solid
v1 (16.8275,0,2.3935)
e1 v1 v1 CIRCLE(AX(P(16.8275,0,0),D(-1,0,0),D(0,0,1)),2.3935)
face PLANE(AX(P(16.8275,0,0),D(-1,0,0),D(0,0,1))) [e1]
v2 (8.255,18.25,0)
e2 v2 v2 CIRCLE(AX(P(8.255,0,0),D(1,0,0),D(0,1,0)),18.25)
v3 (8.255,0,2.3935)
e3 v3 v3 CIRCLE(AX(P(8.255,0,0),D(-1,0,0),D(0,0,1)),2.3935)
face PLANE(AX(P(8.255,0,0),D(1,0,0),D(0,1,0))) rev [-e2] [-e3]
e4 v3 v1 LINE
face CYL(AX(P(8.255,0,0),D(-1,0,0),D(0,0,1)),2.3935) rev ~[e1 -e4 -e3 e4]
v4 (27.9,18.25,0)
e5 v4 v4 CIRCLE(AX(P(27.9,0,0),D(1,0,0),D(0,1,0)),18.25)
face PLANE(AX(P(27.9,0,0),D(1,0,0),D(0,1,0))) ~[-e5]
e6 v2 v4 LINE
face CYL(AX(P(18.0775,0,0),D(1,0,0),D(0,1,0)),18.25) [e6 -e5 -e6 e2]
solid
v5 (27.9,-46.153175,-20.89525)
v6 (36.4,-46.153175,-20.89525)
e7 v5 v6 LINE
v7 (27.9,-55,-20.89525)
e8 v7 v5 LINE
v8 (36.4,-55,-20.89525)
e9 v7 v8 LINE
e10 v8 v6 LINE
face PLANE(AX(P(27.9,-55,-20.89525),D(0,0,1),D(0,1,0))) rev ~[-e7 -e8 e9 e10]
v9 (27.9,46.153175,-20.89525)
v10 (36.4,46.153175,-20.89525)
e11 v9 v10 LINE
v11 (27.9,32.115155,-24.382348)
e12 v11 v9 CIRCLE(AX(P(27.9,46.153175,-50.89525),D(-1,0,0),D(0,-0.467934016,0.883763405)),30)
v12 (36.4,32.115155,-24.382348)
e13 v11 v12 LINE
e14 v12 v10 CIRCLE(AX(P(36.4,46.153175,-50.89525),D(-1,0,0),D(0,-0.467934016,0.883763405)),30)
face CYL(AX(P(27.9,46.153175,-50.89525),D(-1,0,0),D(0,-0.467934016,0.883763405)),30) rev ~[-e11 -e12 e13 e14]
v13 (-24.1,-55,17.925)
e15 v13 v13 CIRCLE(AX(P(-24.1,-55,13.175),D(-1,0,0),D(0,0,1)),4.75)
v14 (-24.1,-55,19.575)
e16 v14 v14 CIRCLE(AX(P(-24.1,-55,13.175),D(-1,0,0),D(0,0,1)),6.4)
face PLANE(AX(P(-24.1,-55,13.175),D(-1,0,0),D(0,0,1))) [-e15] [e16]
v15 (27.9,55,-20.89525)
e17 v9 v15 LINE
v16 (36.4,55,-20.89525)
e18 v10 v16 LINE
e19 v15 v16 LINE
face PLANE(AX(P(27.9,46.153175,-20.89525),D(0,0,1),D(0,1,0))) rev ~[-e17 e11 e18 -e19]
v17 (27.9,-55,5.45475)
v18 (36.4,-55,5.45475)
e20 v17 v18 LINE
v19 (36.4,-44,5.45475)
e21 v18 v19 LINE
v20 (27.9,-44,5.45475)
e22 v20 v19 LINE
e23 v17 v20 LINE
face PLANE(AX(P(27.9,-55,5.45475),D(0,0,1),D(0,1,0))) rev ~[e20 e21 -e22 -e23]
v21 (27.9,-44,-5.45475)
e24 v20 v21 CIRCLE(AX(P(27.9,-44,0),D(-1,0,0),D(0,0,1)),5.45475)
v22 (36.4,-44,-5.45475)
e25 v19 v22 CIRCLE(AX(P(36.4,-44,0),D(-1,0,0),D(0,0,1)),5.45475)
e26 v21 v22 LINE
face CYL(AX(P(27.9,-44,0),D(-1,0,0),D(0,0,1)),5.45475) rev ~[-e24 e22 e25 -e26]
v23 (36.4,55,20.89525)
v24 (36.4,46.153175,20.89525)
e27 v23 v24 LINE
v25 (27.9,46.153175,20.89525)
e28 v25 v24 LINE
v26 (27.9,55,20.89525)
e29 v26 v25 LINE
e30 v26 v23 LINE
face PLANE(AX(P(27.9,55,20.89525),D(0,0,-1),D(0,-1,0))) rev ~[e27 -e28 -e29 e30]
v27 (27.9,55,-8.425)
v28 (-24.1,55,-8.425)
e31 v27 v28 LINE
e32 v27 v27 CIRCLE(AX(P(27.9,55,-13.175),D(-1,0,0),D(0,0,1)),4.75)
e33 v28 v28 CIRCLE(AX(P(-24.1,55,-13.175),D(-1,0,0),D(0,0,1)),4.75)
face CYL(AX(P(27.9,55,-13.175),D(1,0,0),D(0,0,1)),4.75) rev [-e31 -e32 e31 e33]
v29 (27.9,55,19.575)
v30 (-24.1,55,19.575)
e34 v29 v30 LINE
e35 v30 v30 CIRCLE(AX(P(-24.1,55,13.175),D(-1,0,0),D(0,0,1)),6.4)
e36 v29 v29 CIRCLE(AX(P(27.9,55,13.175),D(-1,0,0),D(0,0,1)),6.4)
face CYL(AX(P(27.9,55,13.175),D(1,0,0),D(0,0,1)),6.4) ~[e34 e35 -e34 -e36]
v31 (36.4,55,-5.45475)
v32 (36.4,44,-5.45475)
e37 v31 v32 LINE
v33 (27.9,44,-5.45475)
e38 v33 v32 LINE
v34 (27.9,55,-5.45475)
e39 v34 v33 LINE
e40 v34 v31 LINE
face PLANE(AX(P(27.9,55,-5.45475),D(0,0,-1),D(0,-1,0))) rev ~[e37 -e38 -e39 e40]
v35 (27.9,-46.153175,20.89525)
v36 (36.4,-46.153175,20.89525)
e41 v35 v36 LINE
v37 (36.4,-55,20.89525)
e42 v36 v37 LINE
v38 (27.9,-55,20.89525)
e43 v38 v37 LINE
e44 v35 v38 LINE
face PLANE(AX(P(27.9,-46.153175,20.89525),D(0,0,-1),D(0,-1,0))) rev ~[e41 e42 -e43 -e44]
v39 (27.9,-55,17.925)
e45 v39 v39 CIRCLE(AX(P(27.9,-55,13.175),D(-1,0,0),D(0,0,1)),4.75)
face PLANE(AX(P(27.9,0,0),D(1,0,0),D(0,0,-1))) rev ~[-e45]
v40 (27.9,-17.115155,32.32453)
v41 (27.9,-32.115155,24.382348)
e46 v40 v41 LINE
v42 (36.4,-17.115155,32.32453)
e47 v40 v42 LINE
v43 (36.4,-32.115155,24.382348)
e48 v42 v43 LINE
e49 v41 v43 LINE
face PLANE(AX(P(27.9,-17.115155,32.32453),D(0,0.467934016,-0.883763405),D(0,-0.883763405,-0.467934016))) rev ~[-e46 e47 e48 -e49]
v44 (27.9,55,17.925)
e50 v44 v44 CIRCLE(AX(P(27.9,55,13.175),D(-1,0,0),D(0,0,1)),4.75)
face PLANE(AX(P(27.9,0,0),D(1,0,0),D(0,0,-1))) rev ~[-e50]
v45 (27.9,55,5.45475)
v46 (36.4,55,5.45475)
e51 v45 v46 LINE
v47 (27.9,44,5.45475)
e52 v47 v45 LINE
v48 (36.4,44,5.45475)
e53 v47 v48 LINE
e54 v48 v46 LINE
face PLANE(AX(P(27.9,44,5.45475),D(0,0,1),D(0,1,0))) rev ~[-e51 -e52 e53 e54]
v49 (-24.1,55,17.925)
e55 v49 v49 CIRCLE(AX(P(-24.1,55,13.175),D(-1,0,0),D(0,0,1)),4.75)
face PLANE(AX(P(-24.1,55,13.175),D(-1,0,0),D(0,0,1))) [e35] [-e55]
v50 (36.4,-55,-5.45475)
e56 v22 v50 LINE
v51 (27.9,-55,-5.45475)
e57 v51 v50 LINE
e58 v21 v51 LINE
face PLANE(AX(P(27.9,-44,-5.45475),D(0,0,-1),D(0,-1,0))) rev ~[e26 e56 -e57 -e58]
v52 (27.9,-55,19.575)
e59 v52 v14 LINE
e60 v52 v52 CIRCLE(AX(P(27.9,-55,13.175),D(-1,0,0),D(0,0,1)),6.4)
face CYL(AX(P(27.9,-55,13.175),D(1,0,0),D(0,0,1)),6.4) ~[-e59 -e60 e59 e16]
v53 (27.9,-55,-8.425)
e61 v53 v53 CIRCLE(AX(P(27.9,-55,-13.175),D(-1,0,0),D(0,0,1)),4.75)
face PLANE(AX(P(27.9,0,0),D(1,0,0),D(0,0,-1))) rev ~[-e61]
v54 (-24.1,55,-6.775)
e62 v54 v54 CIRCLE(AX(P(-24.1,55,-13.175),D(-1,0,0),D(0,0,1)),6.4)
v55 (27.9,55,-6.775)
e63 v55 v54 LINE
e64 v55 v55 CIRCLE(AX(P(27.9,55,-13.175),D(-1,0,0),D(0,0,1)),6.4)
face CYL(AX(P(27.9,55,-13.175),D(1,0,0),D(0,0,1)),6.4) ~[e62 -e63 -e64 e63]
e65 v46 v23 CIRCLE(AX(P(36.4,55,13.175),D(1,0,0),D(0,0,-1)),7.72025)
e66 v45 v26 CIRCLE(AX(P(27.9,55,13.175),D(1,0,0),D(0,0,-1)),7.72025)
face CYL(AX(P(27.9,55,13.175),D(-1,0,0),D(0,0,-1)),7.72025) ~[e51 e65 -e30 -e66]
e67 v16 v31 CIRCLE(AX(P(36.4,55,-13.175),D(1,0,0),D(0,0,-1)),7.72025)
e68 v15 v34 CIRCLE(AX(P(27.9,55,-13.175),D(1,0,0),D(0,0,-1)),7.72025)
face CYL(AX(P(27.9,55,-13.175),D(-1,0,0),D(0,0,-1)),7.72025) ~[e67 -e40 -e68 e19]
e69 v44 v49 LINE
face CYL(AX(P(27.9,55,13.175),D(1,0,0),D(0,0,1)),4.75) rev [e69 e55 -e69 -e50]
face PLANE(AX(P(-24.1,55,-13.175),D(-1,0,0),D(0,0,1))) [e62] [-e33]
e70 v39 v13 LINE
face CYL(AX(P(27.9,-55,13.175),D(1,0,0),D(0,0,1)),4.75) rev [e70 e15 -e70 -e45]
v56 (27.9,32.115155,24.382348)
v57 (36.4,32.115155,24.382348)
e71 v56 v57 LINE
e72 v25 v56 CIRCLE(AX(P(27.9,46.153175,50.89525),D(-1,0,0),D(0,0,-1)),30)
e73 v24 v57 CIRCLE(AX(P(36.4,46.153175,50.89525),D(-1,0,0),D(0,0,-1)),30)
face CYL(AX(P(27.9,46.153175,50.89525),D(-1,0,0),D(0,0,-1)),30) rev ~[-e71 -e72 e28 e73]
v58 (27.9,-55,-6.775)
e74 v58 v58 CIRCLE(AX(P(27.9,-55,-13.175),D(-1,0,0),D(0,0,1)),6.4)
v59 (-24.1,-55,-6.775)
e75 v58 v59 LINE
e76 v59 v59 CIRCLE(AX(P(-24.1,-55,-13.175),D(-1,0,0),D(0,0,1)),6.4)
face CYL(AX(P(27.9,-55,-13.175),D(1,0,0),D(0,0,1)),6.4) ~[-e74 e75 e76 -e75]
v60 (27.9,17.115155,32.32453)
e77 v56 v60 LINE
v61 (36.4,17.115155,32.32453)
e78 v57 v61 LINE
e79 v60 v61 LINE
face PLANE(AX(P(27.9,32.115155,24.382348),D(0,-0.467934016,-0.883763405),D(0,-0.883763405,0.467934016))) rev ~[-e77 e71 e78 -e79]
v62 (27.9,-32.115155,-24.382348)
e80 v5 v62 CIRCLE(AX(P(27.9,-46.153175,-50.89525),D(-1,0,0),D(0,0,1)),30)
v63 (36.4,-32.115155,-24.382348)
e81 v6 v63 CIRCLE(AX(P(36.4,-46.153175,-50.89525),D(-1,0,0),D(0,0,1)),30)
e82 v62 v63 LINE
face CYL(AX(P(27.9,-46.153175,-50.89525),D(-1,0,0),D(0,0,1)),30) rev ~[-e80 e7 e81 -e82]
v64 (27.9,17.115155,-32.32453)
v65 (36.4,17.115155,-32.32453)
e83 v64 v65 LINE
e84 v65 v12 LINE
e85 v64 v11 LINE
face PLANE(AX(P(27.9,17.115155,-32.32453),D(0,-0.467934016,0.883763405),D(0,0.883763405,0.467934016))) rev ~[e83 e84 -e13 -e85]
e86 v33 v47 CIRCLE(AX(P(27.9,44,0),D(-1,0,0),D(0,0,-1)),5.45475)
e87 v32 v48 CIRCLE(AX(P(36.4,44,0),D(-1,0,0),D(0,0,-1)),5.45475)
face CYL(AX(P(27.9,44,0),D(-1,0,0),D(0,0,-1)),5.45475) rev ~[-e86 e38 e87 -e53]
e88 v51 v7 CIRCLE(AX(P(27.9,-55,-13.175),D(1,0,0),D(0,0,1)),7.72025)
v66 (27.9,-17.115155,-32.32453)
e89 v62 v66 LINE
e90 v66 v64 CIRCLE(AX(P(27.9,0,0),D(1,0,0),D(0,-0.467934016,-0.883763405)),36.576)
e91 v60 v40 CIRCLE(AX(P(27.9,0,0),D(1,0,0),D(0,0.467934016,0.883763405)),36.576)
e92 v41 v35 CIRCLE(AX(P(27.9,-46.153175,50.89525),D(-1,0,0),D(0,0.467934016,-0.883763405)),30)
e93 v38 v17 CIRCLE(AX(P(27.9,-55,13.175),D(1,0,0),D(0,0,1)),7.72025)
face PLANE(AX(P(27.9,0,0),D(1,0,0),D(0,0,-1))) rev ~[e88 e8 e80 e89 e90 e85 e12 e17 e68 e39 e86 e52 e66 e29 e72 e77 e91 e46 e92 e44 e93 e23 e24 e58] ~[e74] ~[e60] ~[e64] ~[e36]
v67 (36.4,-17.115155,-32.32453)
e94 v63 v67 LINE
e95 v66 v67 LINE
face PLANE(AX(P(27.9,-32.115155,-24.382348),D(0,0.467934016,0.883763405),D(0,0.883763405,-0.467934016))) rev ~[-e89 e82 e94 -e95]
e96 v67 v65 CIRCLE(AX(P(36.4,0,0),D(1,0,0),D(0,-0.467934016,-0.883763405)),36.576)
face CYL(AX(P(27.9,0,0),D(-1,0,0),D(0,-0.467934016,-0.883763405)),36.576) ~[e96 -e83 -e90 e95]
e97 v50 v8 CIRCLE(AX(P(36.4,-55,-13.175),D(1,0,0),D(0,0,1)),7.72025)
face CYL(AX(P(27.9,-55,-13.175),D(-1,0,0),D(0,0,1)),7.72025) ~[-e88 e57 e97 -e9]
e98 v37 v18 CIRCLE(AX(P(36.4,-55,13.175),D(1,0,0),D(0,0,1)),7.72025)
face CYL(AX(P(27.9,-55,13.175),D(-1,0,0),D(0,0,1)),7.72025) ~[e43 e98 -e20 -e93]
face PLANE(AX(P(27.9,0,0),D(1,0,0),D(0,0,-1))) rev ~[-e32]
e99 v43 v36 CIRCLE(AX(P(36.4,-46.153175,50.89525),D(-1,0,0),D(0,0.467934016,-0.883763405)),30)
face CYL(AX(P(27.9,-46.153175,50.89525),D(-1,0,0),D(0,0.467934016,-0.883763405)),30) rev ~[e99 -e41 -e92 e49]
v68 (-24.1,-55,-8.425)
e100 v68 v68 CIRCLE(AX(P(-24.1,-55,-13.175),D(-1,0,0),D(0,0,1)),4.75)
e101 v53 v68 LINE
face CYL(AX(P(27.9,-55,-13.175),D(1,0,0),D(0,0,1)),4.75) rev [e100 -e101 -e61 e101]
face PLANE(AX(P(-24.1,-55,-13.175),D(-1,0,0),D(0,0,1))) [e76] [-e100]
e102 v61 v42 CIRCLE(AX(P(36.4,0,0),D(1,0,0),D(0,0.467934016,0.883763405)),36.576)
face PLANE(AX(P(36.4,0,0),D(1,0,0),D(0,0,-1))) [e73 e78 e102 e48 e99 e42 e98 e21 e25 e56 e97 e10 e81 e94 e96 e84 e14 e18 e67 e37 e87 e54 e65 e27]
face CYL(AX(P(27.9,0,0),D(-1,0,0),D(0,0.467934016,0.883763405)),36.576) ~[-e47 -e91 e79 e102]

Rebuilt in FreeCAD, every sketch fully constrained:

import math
import FreeCAD as App
import Part
import Sketcher
Q = App.Units.Quantity

doc = App.newDocument("Part")
body = doc.addObject("PartDesign::Body", "Body")

# Sketch on XY plane
sketch1 = body.newObject("Sketcher::SketchObject", "Sketch")
sketch1.AttachmentSupport = (doc.getObject("XY_Plane"), [""])
sketch1.MapMode = "FlatFace"
sketch1.addGeometry([
    Part.LineSegment(App.Vector(8.255, 18.25, 0), App.Vector(8.255, 0, 0)),
    Part.LineSegment(App.Vector(8.255, 0, 0), App.Vector(27.9, 0, 0)),
    Part.LineSegment(App.Vector(27.9, 0, 0), App.Vector(27.9, 18.25, 0)),
    Part.LineSegment(App.Vector(27.9, 18.25, 0), App.Vector(8.255, 18.25, 0)),
], False)
sketch1.addConstraint([
    Sketcher.Constraint("Coincident", 0, 2, 1, 1),
    Sketcher.Constraint("Coincident", 1, 2, 2, 1),
    Sketcher.Constraint("Coincident", 2, 2, 3, 1),
    Sketcher.Constraint("Coincident", 3, 2, 0, 1),
    Sketcher.Constraint("Vertical", 0),
    Sketcher.Constraint("Horizontal", 1),
    Sketcher.Constraint("Vertical", 2),
    Sketcher.Constraint("Horizontal", 3),
    Sketcher.Constraint("PointOnObject", 0, 2, -1),
    Sketcher.Constraint("DistanceY", 0, 2, 0, 1, Q("18.25 mm")),
    Sketcher.Constraint("DistanceX", -1, 1, 1, 2, Q("27.9 mm")),
    Sketcher.Constraint("DistanceX", 1, 1, 1, 2, Q("19.645 mm")),
])
revolution = body.newObject("PartDesign::Revolution", "Revolution")
revolution.Profile = sketch1
revolution.ReferenceAxis = (sketch1, ["H_Axis"])
revolution.Angle = 360

# Sketch on YZ plane
sketch2 = body.newObject("Sketcher::SketchObject", "Sketch001")
sketch2.AttachmentSupport = (doc.getObject("YZ_Plane"), [""])
sketch2.MapMode = "FlatFace"
sketch2.AttachmentOffset = App.Placement(App.Vector(0, 0, 8.255), App.Rotation())
sketch2.addGeometry(Part.Circle(App.Vector(0, 0, 0), App.Vector(0, 0, 1), 2.3935), False)
sketch2.addConstraint([
    Sketcher.Constraint("Coincident", 0, 3, -1, 1),
    Sketcher.Constraint("Diameter", 0, Q("4.787 mm")),
])
pocket1 = body.newObject("PartDesign::Pocket", "Pocket")
pocket1.Profile = sketch2
pocket1.Length = 8.5725
pocket1.Reversed = True
body2 = doc.addObject("PartDesign::Body", "Body001")

# Sketch on YZ plane
sketch3 = body2.newObject("Sketcher::SketchObject", "Sketch002")
sketch3.AttachmentSupport = (doc.getObject("YZ_Plane001"), [""])
sketch3.MapMode = "FlatFace"
sketch3.AttachmentOffset = App.Placement(App.Vector(0, 0, 27.9), App.Rotation())
sketch3.addGeometry([
    Part.LineSegment(App.Vector(32.115155, 24.382348, 0), App.Vector(17.115155, 32.32453, 0)),  # 0
    Part.ArcOfCircle(Part.Circle(App.Vector(0, 0, 0), App.Vector(0, 0, 1), 36.576), math.radians(62.099728), math.radians(117.900272)),  # 1
    Part.LineSegment(App.Vector(-17.115155, 32.32453, 0), App.Vector(-32.115155, 24.382348, 0)),  # 2
    Part.ArcOfCircle(Part.Circle(App.Vector(-46.153175, 50.89525, 0), App.Vector(0, 0, 1), 30), math.radians(-90), math.radians(-62.099728)),  # 3
    Part.LineSegment(App.Vector(-46.153175, 20.89525, 0), App.Vector(-55, 20.89525, 0)),  # 4
    Part.ArcOfCircle(Part.Circle(App.Vector(-55, 13.175, 0), App.Vector(0, 0, 1), 7.72025), math.radians(90), math.radians(270)),  # 5
    Part.LineSegment(App.Vector(-55, 5.45475, 0), App.Vector(-44, 5.45475, 0)),  # 6
    Part.ArcOfCircle(Part.Circle(App.Vector(-44, 0, 0), App.Vector(0, 0, 1), 5.45475), math.radians(-90), math.radians(90)),  # 7
    Part.LineSegment(App.Vector(-44, -5.45475, 0), App.Vector(-55, -5.45475, 0)),  # 8
    Part.ArcOfCircle(Part.Circle(App.Vector(-55, -13.175, 0), App.Vector(0, 0, 1), 7.72025), math.radians(90), math.radians(270)),  # 9
    Part.LineSegment(App.Vector(-55, -20.89525, 0), App.Vector(-46.153175, -20.89525, 0)),  # 10
    Part.ArcOfCircle(Part.Circle(App.Vector(-46.153175, -50.89525, 0), App.Vector(0, 0, 1), 30), math.radians(62.099728), math.radians(90)),  # 11
    Part.LineSegment(App.Vector(-32.115155, -24.382348, 0), App.Vector(-17.115155, -32.32453, 0)),  # 12
    Part.ArcOfCircle(Part.Circle(App.Vector(0, 0, 0), App.Vector(0, 0, 1), 36.576), math.radians(-117.900272), math.radians(-62.099728)),  # 13
    Part.LineSegment(App.Vector(17.115155, -32.32453, 0), App.Vector(32.115155, -24.382348, 0)),  # 14
    Part.ArcOfCircle(Part.Circle(App.Vector(46.153175, -50.89525, 0), App.Vector(0, 0, 1), 30), math.radians(90), math.radians(117.900272)),  # 15
    Part.LineSegment(App.Vector(46.153175, -20.89525, 0), App.Vector(55, -20.89525, 0)),  # 16
    Part.ArcOfCircle(Part.Circle(App.Vector(55, -13.175, 0), App.Vector(0, 0, 1), 7.72025), math.radians(-90), math.radians(90)),  # 17
    Part.LineSegment(App.Vector(55, -5.45475, 0), App.Vector(44, -5.45475, 0)),  # 18
    Part.ArcOfCircle(Part.Circle(App.Vector(44, 0, 0), App.Vector(0, 0, 1), 5.45475), math.radians(90), math.radians(270)),  # 19
    Part.LineSegment(App.Vector(44, 5.45475, 0), App.Vector(55, 5.45475, 0)),  # 20
    Part.ArcOfCircle(Part.Circle(App.Vector(55, 13.175, 0), App.Vector(0, 0, 1), 7.72025), math.radians(-90), math.radians(90)),  # 21
    Part.LineSegment(App.Vector(55, 20.89525, 0), App.Vector(46.153175, 20.89525, 0)),  # 22
    Part.ArcOfCircle(Part.Circle(App.Vector(46.153175, 50.89525, 0), App.Vector(0, 0, 1), 30), math.radians(-117.900272), math.radians(-90)),  # 23
], False)
sketch3.addConstraint([
    Sketcher.Constraint("Tangent", 0, 2, 1, 1),
    Sketcher.Constraint("Tangent", 1, 2, 2, 1),
    Sketcher.Constraint("Tangent", 2, 2, 3, 2),
    Sketcher.Constraint("Tangent", 3, 1, 4, 1),
    Sketcher.Constraint("Tangent", 4, 2, 5, 1),
    Sketcher.Constraint("Tangent", 5, 2, 6, 1),
    Sketcher.Constraint("Tangent", 6, 2, 7, 2),
    Sketcher.Constraint("Tangent", 7, 1, 8, 1),
    Sketcher.Constraint("Tangent", 8, 2, 9, 1),
    Sketcher.Constraint("Tangent", 9, 2, 10, 1),
    Sketcher.Constraint("Tangent", 10, 2, 11, 2),
    Sketcher.Constraint("Tangent", 11, 1, 12, 1),
    Sketcher.Constraint("Tangent", 12, 2, 13, 1),
    Sketcher.Constraint("Tangent", 13, 2, 14, 1),
    Sketcher.Constraint("Tangent", 14, 2, 15, 2),
    Sketcher.Constraint("Tangent", 15, 1, 16, 1),
    Sketcher.Constraint("Tangent", 16, 2, 17, 1),
    Sketcher.Constraint("Tangent", 17, 2, 18, 1),
    Sketcher.Constraint("Tangent", 18, 2, 19, 2),
    Sketcher.Constraint("Tangent", 19, 1, 20, 1),
    Sketcher.Constraint("Tangent", 20, 2, 21, 1),
    Sketcher.Constraint("Tangent", 21, 2, 22, 1),
    Sketcher.Constraint("Tangent", 22, 2, 23, 2),
    Sketcher.Constraint("Tangent", 23, 1, 0, 1),
    Sketcher.Constraint("Horizontal", 4),
    Sketcher.Constraint("Horizontal", 6),
    Sketcher.Constraint("Horizontal", 8),
    Sketcher.Constraint("Horizontal", 10),
    Sketcher.Constraint("Horizontal", 16),
    Sketcher.Constraint("Horizontal", 18),
    Sketcher.Constraint("Horizontal", 20),
    Sketcher.Constraint("Horizontal", 22),
    Sketcher.Constraint("Coincident", 1, 3, -1, 1),
    Sketcher.Constraint("Coincident", 13, 3, -1, 1),
    Sketcher.Constraint("Equal", 5, 9),
    Sketcher.Constraint("Equal", 3, 11),
    Sketcher.Constraint("Equal", 1, 13),
    Sketcher.Constraint("Equal", 11, 15),
    Sketcher.Constraint("Equal", 9, 17),
    Sketcher.Constraint("Equal", 7, 19),
    Sketcher.Constraint("Equal", 17, 21),
    Sketcher.Constraint("Equal", 15, 23),
    Sketcher.Constraint("Symmetric", 3, 3, 15, 3, -1, 1),
    Sketcher.Constraint("Symmetric", 11, 3, 15, 3, -2),
    Sketcher.Constraint("Parallel", 0, 12),
    Sketcher.Constraint("Vertical", 5, 3, 9, 3),
    Sketcher.Constraint("Vertical", 17, 3, 21, 3),
    Sketcher.Constraint("Equal", 10, 16),
    Sketcher.Constraint("Equal", 8, 18),
    Sketcher.Constraint("Radius", 3, Q("30 mm")),
    Sketcher.Constraint("DistanceX", 6, 1, 6, 2, Q("11 mm")),
    Sketcher.Constraint("DistanceX", 5, 3, -1, 1, Q("55 mm")),
    Sketcher.Constraint("Radius", 1, Q("36.576 mm")),
    Sketcher.Constraint("DistanceX", 2, 2, 1, 2, Q("15 mm")),
    Sketcher.Constraint("Radius", 5, Q("7.72025 mm")),
    Sketcher.Constraint("Radius", 7, Q("5.45475 mm")),
])
pad1 = body2.newObject("PartDesign::Pad", "Pad")
pad1.Profile = sketch3
pad1.Length = 8.5

# Sketch on YZ plane
sketch4 = body2.newObject("Sketcher::SketchObject", "Sketch003")
sketch4.AttachmentSupport = (doc.getObject("YZ_Plane001"), [""])
sketch4.MapMode = "FlatFace"
sketch4.AttachmentOffset = App.Placement(App.Vector(0, 0, 27.9), App.Rotation())
sketch4.addGeometry([
    Part.Circle(App.Vector(55, -13.175, 0), App.Vector(0, 0, 1), 6.4),  # 0
    Part.Circle(App.Vector(55, -13.175, 0), App.Vector(0, 0, 1), 4.75),  # 1
    Part.Circle(App.Vector(55, 13.175, 0), App.Vector(0, 0, 1), 6.4),  # 2
    Part.Circle(App.Vector(55, 13.175, 0), App.Vector(0, 0, 1), 4.75),  # 3
    Part.Circle(App.Vector(-55, 13.175, 0), App.Vector(0, 0, 1), 6.4),  # 4
    Part.Circle(App.Vector(-55, 13.175, 0), App.Vector(0, 0, 1), 4.75),  # 5
    Part.Circle(App.Vector(-55, -13.175, 0), App.Vector(0, 0, 1), 6.4),  # 6
    Part.Circle(App.Vector(-55, -13.175, 0), App.Vector(0, 0, 1), 4.75),  # 7
], False)
sketch4.addConstraint([
    Sketcher.Constraint("Coincident", 1, 3, 0, 3),
    Sketcher.Constraint("Coincident", 3, 3, 2, 3),
    Sketcher.Constraint("Coincident", 5, 3, 4, 3),
    Sketcher.Constraint("Coincident", 7, 3, 6, 3),
    Sketcher.Constraint("Equal", 0, 2),
    Sketcher.Constraint("Equal", 1, 3),
    Sketcher.Constraint("Equal", 2, 4),
    Sketcher.Constraint("Equal", 3, 5),
    Sketcher.Constraint("Equal", 4, 6),
    Sketcher.Constraint("Equal", 5, 7),
    Sketcher.Constraint("Symmetric", 0, 3, 4, 3, -1, 1),
    Sketcher.Constraint("Symmetric", 2, 3, 6, 3, -1, 1),
    Sketcher.Constraint("Symmetric", 2, 3, 4, 3, -2),
    Sketcher.Constraint("Diameter", 0, Q("12.8 mm")),
    Sketcher.Constraint("Diameter", 1, Q("9.5 mm")),
    Sketcher.Constraint("DistanceX", -1, 1, 0, 3, Q("55 mm")),
    Sketcher.Constraint("DistanceY", 0, 3, 2, 3, Q("26.35 mm")),
])
pad2 = body2.newObject("PartDesign::Pad", "Pad001")
pad2.Profile = sketch4
pad2.Length = 52
pad2.Reversed = True

doc.recompute()
